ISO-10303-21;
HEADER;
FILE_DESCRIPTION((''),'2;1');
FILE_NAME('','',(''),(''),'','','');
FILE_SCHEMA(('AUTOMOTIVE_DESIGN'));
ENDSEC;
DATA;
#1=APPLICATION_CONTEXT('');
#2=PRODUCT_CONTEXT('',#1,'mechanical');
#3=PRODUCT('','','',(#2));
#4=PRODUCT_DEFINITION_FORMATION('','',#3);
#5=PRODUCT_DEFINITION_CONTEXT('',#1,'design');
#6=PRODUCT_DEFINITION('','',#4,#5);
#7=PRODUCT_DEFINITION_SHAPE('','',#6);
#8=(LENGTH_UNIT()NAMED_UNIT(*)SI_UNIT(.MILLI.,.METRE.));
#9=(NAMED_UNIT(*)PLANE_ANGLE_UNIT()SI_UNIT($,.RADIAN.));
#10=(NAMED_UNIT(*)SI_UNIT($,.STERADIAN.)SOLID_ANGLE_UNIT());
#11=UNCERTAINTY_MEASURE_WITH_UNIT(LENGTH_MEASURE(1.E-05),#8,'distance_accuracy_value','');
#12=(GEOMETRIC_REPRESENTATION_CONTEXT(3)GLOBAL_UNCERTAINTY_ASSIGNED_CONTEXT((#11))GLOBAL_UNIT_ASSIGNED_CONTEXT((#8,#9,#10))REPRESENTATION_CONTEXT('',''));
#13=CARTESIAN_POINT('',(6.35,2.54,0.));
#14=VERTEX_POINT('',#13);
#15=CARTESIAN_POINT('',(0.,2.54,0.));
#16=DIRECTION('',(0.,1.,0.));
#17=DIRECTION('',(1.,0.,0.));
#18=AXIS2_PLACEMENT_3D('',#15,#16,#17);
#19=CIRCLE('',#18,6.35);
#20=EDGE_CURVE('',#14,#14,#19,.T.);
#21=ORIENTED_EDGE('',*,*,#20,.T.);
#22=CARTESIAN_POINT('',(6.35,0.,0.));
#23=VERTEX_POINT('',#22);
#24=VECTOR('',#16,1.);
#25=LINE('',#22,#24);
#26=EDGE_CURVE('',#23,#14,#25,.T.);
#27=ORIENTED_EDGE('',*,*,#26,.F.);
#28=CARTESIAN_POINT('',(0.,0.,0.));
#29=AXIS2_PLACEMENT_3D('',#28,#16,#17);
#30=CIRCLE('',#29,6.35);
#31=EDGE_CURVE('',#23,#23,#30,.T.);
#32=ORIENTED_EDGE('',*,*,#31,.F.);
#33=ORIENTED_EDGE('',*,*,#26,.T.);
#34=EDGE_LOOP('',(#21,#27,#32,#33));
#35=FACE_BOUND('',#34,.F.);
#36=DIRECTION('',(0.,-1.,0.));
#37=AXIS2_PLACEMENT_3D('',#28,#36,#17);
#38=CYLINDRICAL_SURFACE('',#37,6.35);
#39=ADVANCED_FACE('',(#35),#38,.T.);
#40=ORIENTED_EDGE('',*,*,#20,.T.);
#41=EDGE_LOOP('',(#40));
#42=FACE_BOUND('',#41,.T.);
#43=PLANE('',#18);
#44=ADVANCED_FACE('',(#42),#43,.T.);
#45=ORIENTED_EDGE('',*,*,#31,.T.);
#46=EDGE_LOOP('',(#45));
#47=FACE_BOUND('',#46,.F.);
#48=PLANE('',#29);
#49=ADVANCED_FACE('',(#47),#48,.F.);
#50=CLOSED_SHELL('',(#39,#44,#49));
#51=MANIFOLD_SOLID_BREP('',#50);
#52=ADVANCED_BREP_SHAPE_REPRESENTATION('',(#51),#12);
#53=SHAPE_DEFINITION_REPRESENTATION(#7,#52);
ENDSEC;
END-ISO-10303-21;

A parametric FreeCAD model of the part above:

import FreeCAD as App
import Part
import Sketcher
from FreeCAD import Vector
Q = App.Units.Quantity

doc = App.newDocument("Part")
params = doc.addObject("Spreadsheet::Sheet", "Params")
for row, (alias, value) in enumerate([
    ("sketch1_diameter", "0.5 in"),
    ("pad1_length", "0.1 in"),
], start=1):
    params.set(f"A{row}", alias)
    params.set(f"B{row}", "=" + value)
    params.setAlias(f"B{row}", alias)

body = doc.addObject("PartDesign::Body", "Body")

# Sketch on XZ plane
sketch1 = body.newObject("Sketcher::SketchObject", "Sketch")
sketch1.AttachmentSupport = (doc.getObject("XZ_Plane"), [""])
sketch1.MapMode = "FlatFace"
sketch1.addGeometry(Part.Circle(Vector(0, 0, 0), Vector(0, 0, 1), 6), False)
sketch1.addConstraint(Sketcher.Constraint("Coincident", 0, 3, -1, 1))
sketch1.addConstraint(Sketcher.Constraint("Diameter", 0, Q("0.5 in")))
sketch1.setExpression("Constraints[1]", "Params.sketch1_diameter")
pad1 = body.newObject("PartDesign::Pad", "Pad")
pad1.Profile = sketch1
pad1.setExpression("Length", "Params.pad1_length")
pad1.Reversed = True

doc.recompute()
